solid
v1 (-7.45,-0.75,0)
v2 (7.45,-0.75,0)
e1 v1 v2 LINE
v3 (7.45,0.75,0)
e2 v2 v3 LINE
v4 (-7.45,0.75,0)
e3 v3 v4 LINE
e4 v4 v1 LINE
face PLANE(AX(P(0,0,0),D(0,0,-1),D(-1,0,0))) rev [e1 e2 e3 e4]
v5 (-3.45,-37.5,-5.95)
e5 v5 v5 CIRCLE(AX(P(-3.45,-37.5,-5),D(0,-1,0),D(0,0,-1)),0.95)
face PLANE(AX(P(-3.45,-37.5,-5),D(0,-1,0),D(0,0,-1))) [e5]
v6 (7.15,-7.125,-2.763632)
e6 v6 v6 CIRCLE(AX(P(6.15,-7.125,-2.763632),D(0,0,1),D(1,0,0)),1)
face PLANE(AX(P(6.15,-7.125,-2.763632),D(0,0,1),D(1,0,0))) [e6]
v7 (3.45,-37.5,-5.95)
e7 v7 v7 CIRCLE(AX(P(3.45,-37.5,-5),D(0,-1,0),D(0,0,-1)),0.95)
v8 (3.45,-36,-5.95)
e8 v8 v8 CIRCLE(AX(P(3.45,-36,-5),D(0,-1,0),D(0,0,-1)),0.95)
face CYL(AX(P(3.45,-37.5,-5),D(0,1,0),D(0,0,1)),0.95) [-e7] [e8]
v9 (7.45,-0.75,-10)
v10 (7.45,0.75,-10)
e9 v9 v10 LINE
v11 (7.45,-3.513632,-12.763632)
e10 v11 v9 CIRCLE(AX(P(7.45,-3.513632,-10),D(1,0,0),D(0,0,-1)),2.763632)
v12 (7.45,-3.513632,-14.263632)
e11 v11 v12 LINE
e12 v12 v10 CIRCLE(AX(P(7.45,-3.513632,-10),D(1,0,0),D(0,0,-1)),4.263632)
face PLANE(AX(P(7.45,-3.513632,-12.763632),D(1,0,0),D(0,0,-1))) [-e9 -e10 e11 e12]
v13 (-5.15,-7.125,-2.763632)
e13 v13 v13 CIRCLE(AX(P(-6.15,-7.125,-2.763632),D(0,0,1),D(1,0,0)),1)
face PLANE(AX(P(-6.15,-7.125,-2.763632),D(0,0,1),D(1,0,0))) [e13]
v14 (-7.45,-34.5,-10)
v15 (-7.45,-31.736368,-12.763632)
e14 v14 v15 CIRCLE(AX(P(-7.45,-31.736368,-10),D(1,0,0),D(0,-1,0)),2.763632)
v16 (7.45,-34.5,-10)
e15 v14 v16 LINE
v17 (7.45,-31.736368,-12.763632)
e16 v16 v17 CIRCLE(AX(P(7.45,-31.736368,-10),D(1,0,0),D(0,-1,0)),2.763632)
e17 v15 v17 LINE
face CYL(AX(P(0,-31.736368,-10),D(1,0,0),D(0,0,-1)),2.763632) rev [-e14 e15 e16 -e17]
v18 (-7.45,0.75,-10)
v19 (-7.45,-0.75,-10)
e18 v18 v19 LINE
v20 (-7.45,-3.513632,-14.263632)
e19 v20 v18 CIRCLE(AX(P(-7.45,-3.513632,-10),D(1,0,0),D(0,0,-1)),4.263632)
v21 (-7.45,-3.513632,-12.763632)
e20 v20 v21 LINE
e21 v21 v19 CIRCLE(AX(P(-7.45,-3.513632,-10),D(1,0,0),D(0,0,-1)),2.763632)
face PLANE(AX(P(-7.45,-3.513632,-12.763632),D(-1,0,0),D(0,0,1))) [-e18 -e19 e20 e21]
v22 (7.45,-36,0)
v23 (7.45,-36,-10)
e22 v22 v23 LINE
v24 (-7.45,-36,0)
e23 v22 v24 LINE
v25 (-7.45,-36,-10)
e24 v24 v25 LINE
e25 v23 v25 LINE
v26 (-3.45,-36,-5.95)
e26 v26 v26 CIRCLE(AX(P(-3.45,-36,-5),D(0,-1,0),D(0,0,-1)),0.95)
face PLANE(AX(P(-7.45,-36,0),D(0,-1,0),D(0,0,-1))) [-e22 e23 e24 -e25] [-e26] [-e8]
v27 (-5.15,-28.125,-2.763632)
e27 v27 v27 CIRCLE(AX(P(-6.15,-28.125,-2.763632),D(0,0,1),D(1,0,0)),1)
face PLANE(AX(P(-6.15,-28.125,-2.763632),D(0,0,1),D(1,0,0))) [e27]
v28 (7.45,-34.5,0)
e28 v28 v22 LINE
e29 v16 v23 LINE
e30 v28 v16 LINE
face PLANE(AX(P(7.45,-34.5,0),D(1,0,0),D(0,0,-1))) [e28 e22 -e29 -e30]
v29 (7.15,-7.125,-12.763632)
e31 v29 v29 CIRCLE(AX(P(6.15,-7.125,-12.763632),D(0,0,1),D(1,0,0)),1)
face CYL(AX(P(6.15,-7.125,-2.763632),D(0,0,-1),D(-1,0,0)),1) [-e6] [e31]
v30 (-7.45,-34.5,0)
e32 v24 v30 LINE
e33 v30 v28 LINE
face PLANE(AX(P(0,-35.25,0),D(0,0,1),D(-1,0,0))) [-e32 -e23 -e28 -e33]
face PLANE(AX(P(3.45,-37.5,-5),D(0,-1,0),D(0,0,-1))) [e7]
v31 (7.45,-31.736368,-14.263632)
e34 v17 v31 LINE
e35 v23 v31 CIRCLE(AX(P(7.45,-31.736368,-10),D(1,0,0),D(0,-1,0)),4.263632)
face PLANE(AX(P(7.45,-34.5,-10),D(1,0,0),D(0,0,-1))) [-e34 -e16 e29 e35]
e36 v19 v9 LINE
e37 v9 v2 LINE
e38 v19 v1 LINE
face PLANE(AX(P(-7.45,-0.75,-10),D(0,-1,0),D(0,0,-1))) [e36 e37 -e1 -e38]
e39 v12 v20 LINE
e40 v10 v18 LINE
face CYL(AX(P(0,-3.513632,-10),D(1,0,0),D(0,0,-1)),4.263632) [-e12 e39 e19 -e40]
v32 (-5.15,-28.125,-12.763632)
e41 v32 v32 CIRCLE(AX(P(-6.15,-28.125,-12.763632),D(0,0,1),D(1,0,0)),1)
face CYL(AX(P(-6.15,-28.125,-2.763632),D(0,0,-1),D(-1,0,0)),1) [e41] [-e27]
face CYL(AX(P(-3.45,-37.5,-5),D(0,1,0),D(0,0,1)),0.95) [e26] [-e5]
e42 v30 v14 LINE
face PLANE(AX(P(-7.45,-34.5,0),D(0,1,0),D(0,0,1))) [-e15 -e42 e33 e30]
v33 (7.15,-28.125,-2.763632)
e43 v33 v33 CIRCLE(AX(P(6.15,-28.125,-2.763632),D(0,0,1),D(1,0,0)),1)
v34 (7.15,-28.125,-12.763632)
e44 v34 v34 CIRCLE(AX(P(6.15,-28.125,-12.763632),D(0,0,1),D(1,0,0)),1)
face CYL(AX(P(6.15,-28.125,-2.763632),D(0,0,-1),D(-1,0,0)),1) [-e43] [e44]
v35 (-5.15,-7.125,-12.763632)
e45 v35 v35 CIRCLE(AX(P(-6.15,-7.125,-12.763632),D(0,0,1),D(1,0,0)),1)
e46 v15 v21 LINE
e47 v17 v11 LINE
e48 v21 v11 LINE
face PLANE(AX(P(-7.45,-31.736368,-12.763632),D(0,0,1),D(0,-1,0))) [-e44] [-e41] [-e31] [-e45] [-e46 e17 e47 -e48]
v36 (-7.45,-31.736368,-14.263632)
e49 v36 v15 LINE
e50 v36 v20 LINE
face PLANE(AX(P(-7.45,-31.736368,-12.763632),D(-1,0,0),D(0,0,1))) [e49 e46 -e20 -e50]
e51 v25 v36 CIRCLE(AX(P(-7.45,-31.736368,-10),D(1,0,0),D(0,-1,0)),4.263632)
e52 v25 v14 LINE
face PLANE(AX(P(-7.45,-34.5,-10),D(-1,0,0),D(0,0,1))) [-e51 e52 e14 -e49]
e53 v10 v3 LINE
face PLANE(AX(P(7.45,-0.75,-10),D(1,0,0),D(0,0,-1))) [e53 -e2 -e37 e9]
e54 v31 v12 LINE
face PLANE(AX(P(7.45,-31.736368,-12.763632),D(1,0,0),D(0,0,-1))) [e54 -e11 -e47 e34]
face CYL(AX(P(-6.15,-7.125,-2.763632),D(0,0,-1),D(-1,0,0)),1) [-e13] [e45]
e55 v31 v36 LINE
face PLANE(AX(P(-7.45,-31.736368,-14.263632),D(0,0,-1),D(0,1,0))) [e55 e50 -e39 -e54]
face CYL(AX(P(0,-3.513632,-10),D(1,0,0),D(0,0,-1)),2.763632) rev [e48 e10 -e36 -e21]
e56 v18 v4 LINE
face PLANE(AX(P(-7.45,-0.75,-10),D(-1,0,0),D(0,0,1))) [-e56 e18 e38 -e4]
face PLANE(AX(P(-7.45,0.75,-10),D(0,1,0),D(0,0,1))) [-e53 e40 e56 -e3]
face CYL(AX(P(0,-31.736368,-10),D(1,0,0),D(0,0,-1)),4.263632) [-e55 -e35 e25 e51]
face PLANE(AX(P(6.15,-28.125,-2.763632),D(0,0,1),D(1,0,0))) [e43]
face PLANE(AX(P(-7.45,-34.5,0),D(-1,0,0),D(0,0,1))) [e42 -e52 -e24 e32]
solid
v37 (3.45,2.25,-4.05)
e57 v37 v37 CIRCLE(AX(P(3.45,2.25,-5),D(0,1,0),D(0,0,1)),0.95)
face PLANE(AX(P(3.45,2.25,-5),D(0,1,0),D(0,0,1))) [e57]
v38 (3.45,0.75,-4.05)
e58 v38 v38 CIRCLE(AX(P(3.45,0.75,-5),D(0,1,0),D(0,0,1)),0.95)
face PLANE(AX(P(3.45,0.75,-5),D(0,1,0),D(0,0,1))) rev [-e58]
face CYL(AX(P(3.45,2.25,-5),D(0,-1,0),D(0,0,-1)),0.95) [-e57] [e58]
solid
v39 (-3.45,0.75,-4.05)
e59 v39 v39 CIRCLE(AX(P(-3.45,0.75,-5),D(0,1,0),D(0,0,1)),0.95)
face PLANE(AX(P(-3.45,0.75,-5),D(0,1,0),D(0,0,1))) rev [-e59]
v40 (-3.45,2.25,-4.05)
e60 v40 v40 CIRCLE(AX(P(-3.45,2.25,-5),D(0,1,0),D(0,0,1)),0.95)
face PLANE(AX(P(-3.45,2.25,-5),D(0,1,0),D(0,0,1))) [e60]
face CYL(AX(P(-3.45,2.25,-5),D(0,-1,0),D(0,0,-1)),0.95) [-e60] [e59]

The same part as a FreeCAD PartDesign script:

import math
import FreeCAD as App
import Part
import Sketcher
from FreeCAD import Vector
Q = App.Units.Quantity

doc = App.newDocument("Part")
body = doc.addObject("PartDesign::Body", "Body")

# Sketch on XY plane
sketch1 = body.newObject("Sketcher::SketchObject", "Sketch")
sketch1.AttachmentSupport = (doc.getObject("XY_Plane"), [""])
sketch1.MapMode = "FlatFace"
sketch1.addGeometry(Part.LineSegment(Vector(-7.5, 0.8, 0), Vector(-7.5, -0.8, 0)), False)
sketch1.addGeometry(Part.LineSegment(Vector(-7.5, -0.8, 0), Vector(7.5, -0.8, 0)), False)
sketch1.addGeometry(Part.LineSegment(Vector(7.5, -0.8, 0), Vector(7.5, 0.8, 0)), False)
sketch1.addGeometry(Part.LineSegment(Vector(7.5, 0.8, 0), Vector(-7.5, 0.8, 0)), False)
sketch1.addConstraint(Sketcher.Constraint("Coincident", 0, 2, 1, 1))
sketch1.addConstraint(Sketcher.Constraint("Coincident", 1, 2, 2, 1))
sketch1.addConstraint(Sketcher.Constraint("Coincident", 2, 2, 3, 1))
sketch1.addConstraint(Sketcher.Constraint("Coincident", 3, 2, 0, 1))
sketch1.addConstraint(Sketcher.Constraint("Vertical", 0))
sketch1.addConstraint(Sketcher.Constraint("Horizontal", 1))
sketch1.addConstraint(Sketcher.Constraint("Vertical", 2))
sketch1.addConstraint(Sketcher.Constraint("Horizontal", 3))
sketch1.addConstraint(Sketcher.Constraint("Symmetric", 0, 2, 2, 2, -1, 1))
sketch1.addConstraint(Sketcher.Constraint("DistanceX", 1, 1, 1, 2, Q("14.9 mm")))
sketch1.addConstraint(Sketcher.Constraint("DistanceY", 0, 2, 0, 1, Q("1.5 mm")))

# Sketch on YZ plane
sketch2 = body.newObject("Sketcher::SketchObject", "Sketch001")
sketch2.AttachmentSupport = (doc.getObject("YZ_Plane"), [""])
sketch2.MapMode = "FlatFace"
sketch2.addGeometry(Part.LineSegment(Vector(0, 0, 0), Vector(0, -10, 0)), False)
sketch2.addGeometry(Part.ArcOfCircle(Part.Circle(Vector(-3.5, -10, 0), Vector(0, 0, 1), 3.5), math.radians(-90), math.radians(0)), False)
sketch2.addGeometry(Part.LineSegment(Vector(-3.5, -13.5, 0), Vector(-31.7, -13.5, 0)), False)
sketch2.addGeometry(Part.ArcOfCircle(Part.Circle(Vector(-31.7, -10, 0), Vector(0, 0, 1), 3.5), math.radians(-180), math.radians(-90)), False)
sketch2.addGeometry(Part.LineSegment(Vector(-35.2, -10, 0), Vector(-35.2, 0, 0)), False)
sketch2.addConstraint(Sketcher.Constraint("Tangent", 0, 2, 1, 2))
sketch2.addConstraint(Sketcher.Constraint("Tangent", 1, 1, 2, 1))
sketch2.addConstraint(Sketcher.Constraint("Tangent", 2, 2, 3, 2))
sketch2.addConstraint(Sketcher.Constraint("Tangent", 3, 1, 4, 1))
sketch2.addConstraint(Sketcher.Constraint("Vertical", 0))
sketch2.addConstraint(Sketcher.Constraint("Horizontal", 2))
sketch2.addConstraint(Sketcher.Constraint("Vertical", 4))
sketch2.addConstraint(Sketcher.Constraint("Coincident", 0, 1, -1, 1))
sketch2.addConstraint(Sketcher.Constraint("Equal", 1, 3))
sketch2.addConstraint(Sketcher.Constraint("PointOnObject", 4, 2, -1))
sketch2.addConstraint(Sketcher.Constraint("DistanceY", 0, 2, 0, 1, Q("10 mm")))
sketch2.addConstraint(Sketcher.Constraint("DistanceX", 3, 1, -1, 1, Q("35.25 mm")))
sketch2.addConstraint(Sketcher.Constraint("Radius", 1, Q("3.513632 mm")))
doc.recompute()

additivepipe = body.newObject("PartDesign::AdditivePipe", "AdditivePipe")
additivepipe.Profile = sketch1
additivepipe.Spine = (sketch2, ["Edge1", "Edge2", "Edge3", "Edge4", "Edge5"])

# Sketch on XZ plane
sketch3 = body.newObject("Sketcher::SketchObject", "Sketch002")
sketch3.AttachmentSupport = (doc.getObject("XZ_Plane"), [""])
sketch3.MapMode = "FlatFace"
sketch3.AttachmentOffset = App.Placement(Vector(0, 0, 36), App.Rotation())
sketch3.addGeometry(Part.Circle(Vector(-3.5, -5, 0), Vector(0, 0, 1), 0.9), False)
sketch3.addGeometry(Part.Circle(Vector(3.5, -5, 0), Vector(0, 0, 1), 0.9), False)
sketch3.addConstraint(Sketcher.Constraint("Equal", 0, 1))
sketch3.addConstraint(Sketcher.Constraint("Symmetric", 0, 3, 1, 3, -2))
sketch3.addConstraint(Sketcher.Constraint("Diameter", 0, Q("1.9 mm")))
sketch3.addConstraint(Sketcher.Constraint("DistanceY", 0, 3, -1, 1, Q("5 mm")))
sketch3.addConstraint(Sketcher.Constraint("DistanceX", 0, 3, 1, 3, Q("6.9 mm")))
pad1 = body.newObject("PartDesign::Pad", "Pad")
pad1.Profile = sketch3
pad1.Length = 1.5

# Sketch on XY plane
sketch4 = body.newObject("Sketcher::SketchObject", "Sketch003")
sketch4.AttachmentSupport = (doc.getObject("XY_Plane"), [""])
sketch4.MapMode = "FlatFace"
sketch4.AttachmentOffset = App.Placement(Vector(0, 0, -12.763632), App.Rotation())
sketch4.addGeometry(Part.Circle(Vector(-6.2, -28.1, 0), Vector(0, 0, 1), 1), False)
sketch4.addGeometry(Part.Circle(Vector(-6.2, -7.1, 0), Vector(0, 0, 1), 1), False)
sketch4.addGeometry(Part.Circle(Vector(6.2, -7.1, 0), Vector(0, 0, 1), 1), False)
sketch4.addGeometry(Part.Circle(Vector(6.2, -28.1, 0), Vector(0, 0, 1), 1), False)
sketch4.addConstraint(Sketcher.Constraint("Equal", 0, 1))
sketch4.addConstraint(Sketcher.Constraint("Equal", 1, 2))
sketch4.addConstraint(Sketcher.Constraint("Equal", 2, 3))
sketch4.addConstraint(Sketcher.Constraint("Symmetric", 1, 3, 2, 3, -2))
sketch4.addConstraint(Sketcher.Constraint("Symmetric", 0, 3, 3, 3, -2))
sketch4.addConstraint(Sketcher.Constraint("Vertical", 0, 3, 1, 3))
sketch4.addConstraint(Sketcher.Constraint("Diameter", 0, Q("2 mm")))
sketch4.addConstraint(Sketcher.Constraint("DistanceY", 0, 3, 1, 3, Q("21 mm")))
sketch4.addConstraint(Sketcher.Constraint("DistanceX", 1, 3, 2, 3, Q("12.3 mm")))
sketch4.addConstraint(Sketcher.Constraint("DistanceY", 0, 3, -1, 1, Q("28.125 mm")))
pad2 = body.newObject("PartDesign::Pad", "Pad001")
pad2.Profile = sketch4
pad2.Length = 10
body2 = doc.addObject("PartDesign::Body", "Body001")

# Sketch on XZ plane
sketch5 = body2.newObject("Sketcher::SketchObject", "Sketch004")
sketch5.AttachmentSupport = (doc.getObject("XZ_Plane001"), [""])
sketch5.MapMode = "FlatFace"
sketch5.AttachmentOffset = App.Placement(Vector(0, 0, -0.75), App.Rotation())
sketch5.addGeometry(Part.Circle(Vector(-3.5, -5, 0), Vector(0, 0, 1), 0.9), False)
sketch5.addConstraint(Sketcher.Constraint("Diameter", 0, Q("1.9 mm")))
sketch5.addConstraint(Sketcher.Constraint("DistanceY", 0, 3, -1, 1, Q("5 mm")))
sketch5.addConstraint(Sketcher.Constraint("DistanceX", 0, 3, -1, 1, Q("3.45 mm")))
pad3 = body2.newObject("PartDesign::Pad", "Pad002")
pad3.Profile = sketch5
pad3.Length = 1.5
pad3.Reversed = True
body3 = doc.addObject("PartDesign::Body", "Body002")

# Sketch on XZ plane
sketch6 = body3.newObject("Sketcher::SketchObject", "Sketch005")
sketch6.AttachmentSupport = (doc.getObject("XZ_Plane002"), [""])
sketch6.MapMode = "FlatFace"
sketch6.AttachmentOffset = App.Placement(Vector(0, 0, -0.75), App.Rotation())
sketch6.addGeometry(Part.Circle(Vector(3.5, -5, 0), Vector(0, 0, 1), 0.9), False)
sketch6.addConstraint(Sketcher.Constraint("Diameter", 0, Q("1.9 mm")))
sketch6.addConstraint(Sketcher.Constraint("DistanceY", 0, 3, -1, 1, Q("5 mm")))
sketch6.addConstraint(Sketcher.Constraint("DistanceX", -1, 1, 0, 3, Q("3.45 mm")))
pad4 = body3.newObject("PartDesign::Pad", "Pad003")
pad4.Profile = sketch6
pad4.Length = 1.5
pad4.Reversed = True

doc.recompute()
